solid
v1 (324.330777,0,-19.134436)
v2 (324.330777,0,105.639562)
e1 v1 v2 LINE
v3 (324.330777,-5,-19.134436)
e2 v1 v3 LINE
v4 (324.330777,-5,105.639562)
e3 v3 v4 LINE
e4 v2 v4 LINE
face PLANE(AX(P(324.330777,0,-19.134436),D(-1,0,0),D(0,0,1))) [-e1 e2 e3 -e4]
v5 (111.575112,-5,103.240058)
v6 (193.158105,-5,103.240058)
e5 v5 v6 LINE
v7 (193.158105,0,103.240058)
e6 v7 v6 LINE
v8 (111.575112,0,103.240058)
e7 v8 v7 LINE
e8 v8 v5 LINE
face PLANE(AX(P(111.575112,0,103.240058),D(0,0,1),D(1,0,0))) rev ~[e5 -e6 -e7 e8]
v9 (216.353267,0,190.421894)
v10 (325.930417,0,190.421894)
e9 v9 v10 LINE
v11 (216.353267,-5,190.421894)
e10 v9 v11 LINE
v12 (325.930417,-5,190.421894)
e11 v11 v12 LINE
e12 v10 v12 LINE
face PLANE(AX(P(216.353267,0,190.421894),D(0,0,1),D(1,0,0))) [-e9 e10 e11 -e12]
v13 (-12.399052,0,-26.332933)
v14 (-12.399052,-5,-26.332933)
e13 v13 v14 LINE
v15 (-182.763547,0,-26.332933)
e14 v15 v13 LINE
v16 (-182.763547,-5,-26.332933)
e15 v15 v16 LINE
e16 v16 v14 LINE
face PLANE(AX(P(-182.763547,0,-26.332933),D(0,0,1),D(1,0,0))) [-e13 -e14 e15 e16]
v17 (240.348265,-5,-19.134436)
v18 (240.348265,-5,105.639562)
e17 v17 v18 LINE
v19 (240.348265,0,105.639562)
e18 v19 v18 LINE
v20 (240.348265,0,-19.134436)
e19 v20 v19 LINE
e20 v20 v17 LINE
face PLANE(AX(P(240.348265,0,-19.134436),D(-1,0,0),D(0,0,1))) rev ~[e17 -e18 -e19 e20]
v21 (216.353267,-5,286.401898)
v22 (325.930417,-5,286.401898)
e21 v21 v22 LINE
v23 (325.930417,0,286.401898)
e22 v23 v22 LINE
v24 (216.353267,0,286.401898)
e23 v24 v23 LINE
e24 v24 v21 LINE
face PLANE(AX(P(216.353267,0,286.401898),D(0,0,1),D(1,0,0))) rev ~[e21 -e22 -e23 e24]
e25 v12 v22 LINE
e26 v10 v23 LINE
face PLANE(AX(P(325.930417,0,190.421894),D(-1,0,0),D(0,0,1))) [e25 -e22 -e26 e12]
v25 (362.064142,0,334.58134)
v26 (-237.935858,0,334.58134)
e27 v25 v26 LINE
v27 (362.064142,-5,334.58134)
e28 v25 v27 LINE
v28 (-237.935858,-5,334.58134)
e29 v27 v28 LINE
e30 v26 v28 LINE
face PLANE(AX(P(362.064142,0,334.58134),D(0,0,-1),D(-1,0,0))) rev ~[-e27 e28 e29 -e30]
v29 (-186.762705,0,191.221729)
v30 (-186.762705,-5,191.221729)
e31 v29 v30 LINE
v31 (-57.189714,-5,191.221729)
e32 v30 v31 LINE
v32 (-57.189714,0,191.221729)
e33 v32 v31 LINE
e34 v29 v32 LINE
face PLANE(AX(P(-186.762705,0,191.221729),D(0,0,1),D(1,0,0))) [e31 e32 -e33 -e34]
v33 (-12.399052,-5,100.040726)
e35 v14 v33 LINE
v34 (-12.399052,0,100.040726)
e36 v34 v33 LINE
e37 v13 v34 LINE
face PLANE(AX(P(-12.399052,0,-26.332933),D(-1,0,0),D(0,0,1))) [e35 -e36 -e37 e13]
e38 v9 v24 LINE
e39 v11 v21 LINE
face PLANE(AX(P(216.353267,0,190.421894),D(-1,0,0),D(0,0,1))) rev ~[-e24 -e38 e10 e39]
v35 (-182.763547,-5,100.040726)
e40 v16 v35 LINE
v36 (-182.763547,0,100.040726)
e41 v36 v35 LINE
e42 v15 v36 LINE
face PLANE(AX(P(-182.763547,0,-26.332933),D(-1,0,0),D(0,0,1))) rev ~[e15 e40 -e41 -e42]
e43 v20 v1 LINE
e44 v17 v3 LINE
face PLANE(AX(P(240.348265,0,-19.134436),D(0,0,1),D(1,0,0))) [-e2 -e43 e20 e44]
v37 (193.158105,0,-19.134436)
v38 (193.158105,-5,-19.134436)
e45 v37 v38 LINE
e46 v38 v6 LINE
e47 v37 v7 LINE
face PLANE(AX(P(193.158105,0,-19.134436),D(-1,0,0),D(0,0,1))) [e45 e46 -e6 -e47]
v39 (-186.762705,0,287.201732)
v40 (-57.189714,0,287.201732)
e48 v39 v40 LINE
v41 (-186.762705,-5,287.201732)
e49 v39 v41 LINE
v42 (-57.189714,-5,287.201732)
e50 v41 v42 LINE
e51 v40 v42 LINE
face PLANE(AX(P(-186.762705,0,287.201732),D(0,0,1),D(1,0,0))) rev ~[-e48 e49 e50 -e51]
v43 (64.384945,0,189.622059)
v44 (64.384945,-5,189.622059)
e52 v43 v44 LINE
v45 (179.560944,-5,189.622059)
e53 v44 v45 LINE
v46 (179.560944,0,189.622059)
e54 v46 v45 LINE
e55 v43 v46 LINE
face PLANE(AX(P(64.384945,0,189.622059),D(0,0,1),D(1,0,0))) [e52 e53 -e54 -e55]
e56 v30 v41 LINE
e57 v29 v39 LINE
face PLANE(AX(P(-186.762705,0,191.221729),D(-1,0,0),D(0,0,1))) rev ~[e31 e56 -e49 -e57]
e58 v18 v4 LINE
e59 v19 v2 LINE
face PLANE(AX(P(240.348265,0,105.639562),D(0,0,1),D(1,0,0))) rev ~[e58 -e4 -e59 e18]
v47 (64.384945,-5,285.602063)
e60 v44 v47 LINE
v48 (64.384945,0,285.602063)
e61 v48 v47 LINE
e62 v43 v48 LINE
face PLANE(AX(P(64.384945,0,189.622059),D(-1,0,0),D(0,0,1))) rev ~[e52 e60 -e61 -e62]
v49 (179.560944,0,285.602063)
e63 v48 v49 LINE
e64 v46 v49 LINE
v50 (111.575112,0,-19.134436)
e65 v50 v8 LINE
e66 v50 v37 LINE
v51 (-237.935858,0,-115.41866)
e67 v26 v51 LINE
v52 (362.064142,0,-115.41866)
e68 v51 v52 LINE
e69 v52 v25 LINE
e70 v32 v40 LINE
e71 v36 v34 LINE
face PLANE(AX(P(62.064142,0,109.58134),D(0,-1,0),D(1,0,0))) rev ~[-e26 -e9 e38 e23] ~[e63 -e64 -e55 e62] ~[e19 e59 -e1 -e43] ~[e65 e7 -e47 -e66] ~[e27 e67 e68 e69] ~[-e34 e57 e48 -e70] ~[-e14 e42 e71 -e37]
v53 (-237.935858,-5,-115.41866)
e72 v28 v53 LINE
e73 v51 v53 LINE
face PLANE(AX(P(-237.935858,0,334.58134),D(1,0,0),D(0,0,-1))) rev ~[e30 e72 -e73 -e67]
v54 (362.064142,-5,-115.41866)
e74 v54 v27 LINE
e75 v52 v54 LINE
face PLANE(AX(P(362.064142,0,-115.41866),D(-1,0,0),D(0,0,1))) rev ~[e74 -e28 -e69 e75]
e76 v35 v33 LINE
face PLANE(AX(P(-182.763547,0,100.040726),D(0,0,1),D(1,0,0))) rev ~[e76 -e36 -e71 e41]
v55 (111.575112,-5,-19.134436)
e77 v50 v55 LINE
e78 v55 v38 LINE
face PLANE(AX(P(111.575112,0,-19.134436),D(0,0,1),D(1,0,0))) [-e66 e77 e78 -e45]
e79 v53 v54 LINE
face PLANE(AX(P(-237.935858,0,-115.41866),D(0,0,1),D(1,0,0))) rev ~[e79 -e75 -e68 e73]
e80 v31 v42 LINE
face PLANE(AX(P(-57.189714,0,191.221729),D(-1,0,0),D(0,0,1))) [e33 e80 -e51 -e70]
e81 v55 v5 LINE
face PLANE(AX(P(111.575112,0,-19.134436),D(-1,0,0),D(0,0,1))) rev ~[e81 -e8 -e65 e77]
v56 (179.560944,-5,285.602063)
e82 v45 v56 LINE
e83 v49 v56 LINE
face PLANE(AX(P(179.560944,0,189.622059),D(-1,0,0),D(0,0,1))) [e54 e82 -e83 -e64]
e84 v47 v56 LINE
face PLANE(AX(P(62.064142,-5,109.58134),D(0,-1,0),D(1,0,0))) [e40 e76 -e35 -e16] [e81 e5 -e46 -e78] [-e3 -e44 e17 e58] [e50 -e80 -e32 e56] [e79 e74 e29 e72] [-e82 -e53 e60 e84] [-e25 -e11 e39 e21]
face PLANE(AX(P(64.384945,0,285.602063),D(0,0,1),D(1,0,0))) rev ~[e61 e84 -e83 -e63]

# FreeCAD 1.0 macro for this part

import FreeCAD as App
import Part
import Sketcher
from FreeCAD import Vector


def add_polygon(sketch, points):
    """Adds a closed chain of lines whose ends are joined by coincident constraints."""
    first, n = sketch.GeometryCount, len(points)
    for a, b in zip(points, points[1:] + points[:1]):
        sketch.addGeometry(Part.LineSegment(App.Vector(*a, 0), App.Vector(*b, 0)), False)
    for i in range(n):
        sketch.addConstraint(Sketcher.Constraint("Coincident", first + i, 2, first + (i + 1) % n, 1))

doc = App.newDocument("Part")
body = doc.addObject("PartDesign::Body", "Body")

sketch1 = body.newObject("Sketcher::SketchObject", "Sketch")
sketch1.AttachmentSupport = (doc.getObject("XZ_Plane"), [""])
sketch1.MapMode = "FlatFace"
add_polygon(sketch1, [(362, 335), (-238, 335), (-238, -115), (362, -115)])
add_polygon(sketch1, [(-12, -26), (-183, -26), (-183, 100), (-12, 100)])
add_polygon(sketch1, [(193, -19), (112, -19), (112, 103), (193, 103)])
add_polygon(sketch1, [(324, -19), (240, -19), (240, 106), (324, 106)])
add_polygon(sketch1, [(-57, 191), (-187, 191), (-187, 287), (-57, 287)])
add_polygon(sketch1, [(180, 190), (64, 190), (64, 286), (180, 286)])
add_polygon(sketch1, [(326, 190), (216, 190), (216, 286), (326, 286)])
sketch1.addConstraint([
    Sketcher.Constraint("Horizontal", 0),
    Sketcher.Constraint("Vertical", 1),
    Sketcher.Constraint("Horizontal", 2),
    Sketcher.Constraint("Vertical", 3),
    Sketcher.Constraint("Horizontal", 4),
    Sketcher.Constraint("Vertical", 5),
    Sketcher.Constraint("Horizontal", 6),
    Sketcher.Constraint("Vertical", 7),
    Sketcher.Constraint("Horizontal", 8),
    Sketcher.Constraint("Vertical", 9),
    Sketcher.Constraint("Horizontal", 10),
    Sketcher.Constraint("Vertical", 11),
    Sketcher.Constraint("Horizontal", 12),
    Sketcher.Constraint("Vertical", 13),
    Sketcher.Constraint("Horizontal", 14),
    Sketcher.Constraint("Vertical", 15),
    Sketcher.Constraint("Horizontal", 16),
    Sketcher.Constraint("Vertical", 17),
    Sketcher.Constraint("Horizontal", 18),
    Sketcher.Constraint("Vertical", 19),
    Sketcher.Constraint("Horizontal", 20),
    Sketcher.Constraint("Vertical", 21),
    Sketcher.Constraint("Horizontal", 22),
    Sketcher.Constraint("Vertical", 23),
    Sketcher.Constraint("Horizontal", 24),
    Sketcher.Constraint("Vertical", 25),
    Sketcher.Constraint("Horizontal", 26),
    Sketcher.Constraint("Vertical", 27),
    Sketcher.Constraint("Horizontal", 11, 2, 12, 2),
    Sketcher.Constraint("Equal", 19, 21),
    Sketcher.Constraint("Equal", 23, 25),
    Sketcher.Constraint("DistanceX", 0, 2, 0, 1, 600.0),
    Sketcher.Constraint("DistanceY", 1, 2, 1, 1, 450.0),
    Sketcher.Constraint("DistanceX", 20, 2, 20, 1, 115.176),
    Sketcher.Constraint("DistanceY", 9, 2, 20, 2, 86.382002),
    Sketcher.Constraint("DistanceX", 16, 2, 16, 1, 129.572991),
    Sketcher.Constraint("DistanceX", 24, 2, 24, 1, 109.577149),
    Sketcher.Constraint("DistanceY", 5, 1, 5, 2, 126.37366),
    Sketcher.Constraint("DistanceY", 13, 2, 22, 2, 179.962501),
    Sketcher.Constraint("DistanceX", 4, 2, 4, 1, 170.364494),
    Sketcher.Constraint("DistanceX", 8, 2, 8, 1, 81.582993),
    Sketcher.Constraint("DistanceX", 12, 2, 12, 1, 83.982512),
    Sketcher.Constraint("DistanceY", 9, 1, 9, 2, 122.374494),
    Sketcher.Constraint("DistanceY", 13, 1, 13, 2, 124.773998),
    Sketcher.Constraint("DistanceY", -1, 1, 0, 2, 334.58134),
    Sketcher.Constraint("DistanceX", -1, 1, 8, 2, 111.575112),
    Sketcher.Constraint("DistanceY", -1, 1, 16, 2, 191.221729),
    Sketcher.Constraint("DistanceY", -1, 1, 20, 2, 189.622059),
    Sketcher.Constraint("DistanceX", 1, 2, 4, 2, 55.172311),
    Sketcher.Constraint("DistanceX", 8, 2, 2, 2, 250.489031),
    Sketcher.Constraint("DistanceY", 6, 2, 9, 2, 3.199331),
    Sketcher.Constraint("DistanceX", 11, 2, 12, 2, 47.19016),
    Sketcher.Constraint("DistanceX", 16, 2, 5, 2, 3.999159),
    Sketcher.Constraint("DistanceX", 19, 2, 20, 2, 121.574659),
    Sketcher.Constraint("DistanceY", 24, 2, 22, 2, 95.180169),
    Sketcher.Constraint("DistanceX", 14, 2, 27, 2, 1.59964),
])
pad1 = body.newObject("PartDesign::Pad", "Pad")
pad1.Profile = sketch1
pad1.Length = 5

sketch2 = body.newObject("Sketcher::SketchObject", "Sketch001")
sketch2.AttachmentSupport = (doc.getObject("XZ_Plane"), [""])
sketch2.MapMode = "FlatFace"
add_polygon(sketch2, [(362, 335), (-238, 335), (-238, -115), (362, -115)])
add_polygon(sketch2, [(-12, -26), (-183, -26), (-183, 100), (-12, 100)])
add_polygon(sketch2, [(193, -19), (112, -19), (112, 103), (193, 103)])
add_polygon(sketch2, [(324, -19), (240, -19), (240, 106), (324, 106)])
add_polygon(sketch2, [(-57, 191), (-187, 191), (-187, 287), (-57, 287)])
add_polygon(sketch2, [(180, 190), (64, 190), (64, 286), (180, 286)])
add_polygon(sketch2, [(326, 190), (216, 190), (216, 286), (326, 286)])
sketch2.addConstraint([
    Sketcher.Constraint("Horizontal", 0),
    Sketcher.Constraint("Vertical", 1),
    Sketcher.Constraint("Horizontal", 2),
    Sketcher.Constraint("Vertical", 3),
    Sketcher.Constraint("Horizontal", 4),
    Sketcher.Constraint("Vertical", 5),
    Sketcher.Constraint("Horizontal", 6),
    Sketcher.Constraint("Vertical", 7),
    Sketcher.Constraint("Horizontal", 8),
    Sketcher.Constraint("Vertical", 9),
    Sketcher.Constraint("Horizontal", 10),
    Sketcher.Constraint("Vertical", 11),
    Sketcher.Constraint("Horizontal", 12),
    Sketcher.Constraint("Vertical", 13),
    Sketcher.Constraint("Horizontal", 14),
    Sketcher.Constraint("Vertical", 15),
    Sketcher.Constraint("Horizontal", 16),
    Sketcher.Constraint("Vertical", 17),
    Sketcher.Constraint("Horizontal", 18),
    Sketcher.Constraint("Vertical", 19),
    Sketcher.Constraint("Horizontal", 20),
    Sketcher.Constraint("Vertical", 21),
    Sketcher.Constraint("Horizontal", 22),
    Sketcher.Constraint("Vertical", 23),
    Sketcher.Constraint("Horizontal", 24),
    Sketcher.Constraint("Vertical", 25),
    Sketcher.Constraint("Horizontal", 26),
    Sketcher.Constraint("Vertical", 27),
    Sketcher.Constraint("Horizontal", 11, 2, 12, 2),
    Sketcher.Constraint("Equal", 19, 21),
    Sketcher.Constraint("Equal", 23, 25),
    Sketcher.Constraint("DistanceX", 0, 2, 0, 1, 600.0),
    Sketcher.Constraint("DistanceY", 1, 2, 1, 1, 450.0),
    Sketcher.Constraint("DistanceX", 20, 2, 20, 1, 115.176),
    Sketcher.Constraint("DistanceY", 9, 2, 20, 2, 86.382002),
    Sketcher.Constraint("DistanceX", 16, 2, 16, 1, 129.572991),
    Sketcher.Constraint("DistanceX", 24, 2, 24, 1, 109.577149),
    Sketcher.Constraint("DistanceY", 5, 1, 5, 2, 126.37366),
    Sketcher.Constraint("DistanceY", 13, 2, 22, 2, 179.962501),
    Sketcher.Constraint("DistanceX", 4, 2, 4, 1, 170.364494),
    Sketcher.Constraint("DistanceX", 8, 2, 8, 1, 81.582993),
    Sketcher.Constraint("DistanceX", 12, 2, 12, 1, 83.982512),
    Sketcher.Constraint("DistanceY", 9, 1, 9, 2, 122.374494),
    Sketcher.Constraint("DistanceY", 13, 1, 13, 2, 124.773998),
    Sketcher.Constraint("DistanceY", -1, 1, 0, 2, 334.58134),
    Sketcher.Constraint("DistanceX", -1, 1, 8, 2, 111.575112),
    Sketcher.Constraint("DistanceY", -1, 1, 16, 2, 191.221729),
    Sketcher.Constraint("DistanceY", -1, 1, 20, 2, 189.622059),
    Sketcher.Constraint("DistanceX", 1, 2, 4, 2, 55.172311),
    Sketcher.Constraint("DistanceX", 8, 2, 2, 2, 250.489031),
    Sketcher.Constraint("DistanceY", 6, 2, 9, 2, 3.199331),
    Sketcher.Constraint("DistanceX", 11, 2, 12, 2, 47.19016),
    Sketcher.Constraint("DistanceX", 16, 2, 5, 2, 3.999159),
    Sketcher.Constraint("DistanceX", 19, 2, 20, 2, 121.574659),
    Sketcher.Constraint("DistanceY", 24, 2, 22, 2, 95.180169),
    Sketcher.Constraint("DistanceX", 14, 2, 27, 2, 1.59964),
])
pad2 = body.newObject("PartDesign::Pad", "Pad001")
pad2.Profile = sketch2
pad2.Length = 5

doc.recompute()
